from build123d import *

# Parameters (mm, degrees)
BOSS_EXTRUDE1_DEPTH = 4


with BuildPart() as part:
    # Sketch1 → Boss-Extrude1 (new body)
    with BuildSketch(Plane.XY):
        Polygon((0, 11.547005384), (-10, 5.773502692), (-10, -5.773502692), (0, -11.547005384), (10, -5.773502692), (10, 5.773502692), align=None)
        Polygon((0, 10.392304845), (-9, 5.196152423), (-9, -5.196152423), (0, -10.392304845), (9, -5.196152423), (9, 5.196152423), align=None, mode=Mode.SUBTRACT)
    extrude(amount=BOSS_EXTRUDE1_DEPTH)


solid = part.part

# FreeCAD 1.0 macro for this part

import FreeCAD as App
import Part
import Sketcher
from FreeCAD import Vector
Q = App.Units.Quantity


def add_polygon(sketch, points):
    """Adds a closed chain of lines whose ends are joined by coincident constraints."""
    first, n = sketch.GeometryCount, len(points)
    for a, b in zip(points, points[1:] + points[:1]):
        sketch.addGeometry(Part.LineSegment(App.Vector(*a, 0), App.Vector(*b, 0)), False)
    for i in range(n):
        sketch.addConstraint(Sketcher.Constraint("Coincident", first + i, 2, first + (i + 1) % n, 1))

doc = App.newDocument("Part")
params = doc.addObject("Spreadsheet::Sheet", "Params")
for row, (alias, value) in enumerate([
    ("pad1_length", "4 mm"),
], start=1):
    params.set(f"A{row}", alias)
    params.set(f"B{row}", "=" + value)
    params.setAlias(f"B{row}", alias)

body = doc.addObject("PartDesign::Body", "Body")

# Sketch on XY plane
sketch1 = body.newObject("Sketcher::SketchObject", "Sketch")
sketch1.AttachmentSupport = (doc.getObject("XY_Plane"), [""])
sketch1.MapMode = "FlatFace"
add_polygon(sketch1, [(0, 11.547005), (-10, 5.773503), (-10, -5.773503), (0, -11.547005), (10, -5.773503), (10, 5.773503)])  # lines 0-5
add_polygon(sketch1, [(-9, 5.196152), (0, 10.392305), (9, 5.196152), (9, -5.196152), (0, -10.392305), (-9, -5.196152)])  # lines 6-11
sketch1.addConstraint([
    Sketcher.Constraint("Vertical", 1),
    Sketcher.Constraint("Vertical", 4),
    Sketcher.Constraint("Vertical", 8),
    Sketcher.Constraint("Vertical", 11),
    Sketcher.Constraint("Symmetric", 0, 2, 3, 2, -1, 1),
    Sketcher.Constraint("Symmetric", 2, 2, 5, 2, -1, 1),
    Sketcher.Constraint("Symmetric", 6, 2, 9, 2, -1, 1),
    Sketcher.Constraint("Symmetric", 7, 2, 10, 2, -1, 1),
    Sketcher.Constraint("PointOnObject", 2, 2, -2),
    Sketcher.Constraint("PointOnObject", 6, 2, -2),
    Sketcher.Constraint("Parallel", 2, 5),
    Sketcher.Constraint("Parallel", 3, 6),
    Sketcher.Constraint("Parallel", 5, 7),
    Sketcher.Constraint("Parallel", 6, 9),
    Sketcher.Constraint("Horizontal", 1, 2, 3, 2),
    Sketcher.Constraint("Angle", 0, Q("-150 deg")),
    Sketcher.Constraint("DistanceX", 0, 2, -1, 1, Q("10 mm")),
    Sketcher.Constraint("DistanceX", -1, 1, 7, 2, Q("9 mm")),
    Sketcher.Constraint("DistanceY", 6, 2, 5, 2, Q("1.154701 mm")),
    Sketcher.Constraint("DistanceY", 1, 2, 1, 1, Q("11.547005 mm")),
])
pad1 = body.newObject("PartDesign::Pad", "Pad")
pad1.Profile = sketch1
pad1.setExpression("Length", "Params.pad1_length")

doc.recompute()
